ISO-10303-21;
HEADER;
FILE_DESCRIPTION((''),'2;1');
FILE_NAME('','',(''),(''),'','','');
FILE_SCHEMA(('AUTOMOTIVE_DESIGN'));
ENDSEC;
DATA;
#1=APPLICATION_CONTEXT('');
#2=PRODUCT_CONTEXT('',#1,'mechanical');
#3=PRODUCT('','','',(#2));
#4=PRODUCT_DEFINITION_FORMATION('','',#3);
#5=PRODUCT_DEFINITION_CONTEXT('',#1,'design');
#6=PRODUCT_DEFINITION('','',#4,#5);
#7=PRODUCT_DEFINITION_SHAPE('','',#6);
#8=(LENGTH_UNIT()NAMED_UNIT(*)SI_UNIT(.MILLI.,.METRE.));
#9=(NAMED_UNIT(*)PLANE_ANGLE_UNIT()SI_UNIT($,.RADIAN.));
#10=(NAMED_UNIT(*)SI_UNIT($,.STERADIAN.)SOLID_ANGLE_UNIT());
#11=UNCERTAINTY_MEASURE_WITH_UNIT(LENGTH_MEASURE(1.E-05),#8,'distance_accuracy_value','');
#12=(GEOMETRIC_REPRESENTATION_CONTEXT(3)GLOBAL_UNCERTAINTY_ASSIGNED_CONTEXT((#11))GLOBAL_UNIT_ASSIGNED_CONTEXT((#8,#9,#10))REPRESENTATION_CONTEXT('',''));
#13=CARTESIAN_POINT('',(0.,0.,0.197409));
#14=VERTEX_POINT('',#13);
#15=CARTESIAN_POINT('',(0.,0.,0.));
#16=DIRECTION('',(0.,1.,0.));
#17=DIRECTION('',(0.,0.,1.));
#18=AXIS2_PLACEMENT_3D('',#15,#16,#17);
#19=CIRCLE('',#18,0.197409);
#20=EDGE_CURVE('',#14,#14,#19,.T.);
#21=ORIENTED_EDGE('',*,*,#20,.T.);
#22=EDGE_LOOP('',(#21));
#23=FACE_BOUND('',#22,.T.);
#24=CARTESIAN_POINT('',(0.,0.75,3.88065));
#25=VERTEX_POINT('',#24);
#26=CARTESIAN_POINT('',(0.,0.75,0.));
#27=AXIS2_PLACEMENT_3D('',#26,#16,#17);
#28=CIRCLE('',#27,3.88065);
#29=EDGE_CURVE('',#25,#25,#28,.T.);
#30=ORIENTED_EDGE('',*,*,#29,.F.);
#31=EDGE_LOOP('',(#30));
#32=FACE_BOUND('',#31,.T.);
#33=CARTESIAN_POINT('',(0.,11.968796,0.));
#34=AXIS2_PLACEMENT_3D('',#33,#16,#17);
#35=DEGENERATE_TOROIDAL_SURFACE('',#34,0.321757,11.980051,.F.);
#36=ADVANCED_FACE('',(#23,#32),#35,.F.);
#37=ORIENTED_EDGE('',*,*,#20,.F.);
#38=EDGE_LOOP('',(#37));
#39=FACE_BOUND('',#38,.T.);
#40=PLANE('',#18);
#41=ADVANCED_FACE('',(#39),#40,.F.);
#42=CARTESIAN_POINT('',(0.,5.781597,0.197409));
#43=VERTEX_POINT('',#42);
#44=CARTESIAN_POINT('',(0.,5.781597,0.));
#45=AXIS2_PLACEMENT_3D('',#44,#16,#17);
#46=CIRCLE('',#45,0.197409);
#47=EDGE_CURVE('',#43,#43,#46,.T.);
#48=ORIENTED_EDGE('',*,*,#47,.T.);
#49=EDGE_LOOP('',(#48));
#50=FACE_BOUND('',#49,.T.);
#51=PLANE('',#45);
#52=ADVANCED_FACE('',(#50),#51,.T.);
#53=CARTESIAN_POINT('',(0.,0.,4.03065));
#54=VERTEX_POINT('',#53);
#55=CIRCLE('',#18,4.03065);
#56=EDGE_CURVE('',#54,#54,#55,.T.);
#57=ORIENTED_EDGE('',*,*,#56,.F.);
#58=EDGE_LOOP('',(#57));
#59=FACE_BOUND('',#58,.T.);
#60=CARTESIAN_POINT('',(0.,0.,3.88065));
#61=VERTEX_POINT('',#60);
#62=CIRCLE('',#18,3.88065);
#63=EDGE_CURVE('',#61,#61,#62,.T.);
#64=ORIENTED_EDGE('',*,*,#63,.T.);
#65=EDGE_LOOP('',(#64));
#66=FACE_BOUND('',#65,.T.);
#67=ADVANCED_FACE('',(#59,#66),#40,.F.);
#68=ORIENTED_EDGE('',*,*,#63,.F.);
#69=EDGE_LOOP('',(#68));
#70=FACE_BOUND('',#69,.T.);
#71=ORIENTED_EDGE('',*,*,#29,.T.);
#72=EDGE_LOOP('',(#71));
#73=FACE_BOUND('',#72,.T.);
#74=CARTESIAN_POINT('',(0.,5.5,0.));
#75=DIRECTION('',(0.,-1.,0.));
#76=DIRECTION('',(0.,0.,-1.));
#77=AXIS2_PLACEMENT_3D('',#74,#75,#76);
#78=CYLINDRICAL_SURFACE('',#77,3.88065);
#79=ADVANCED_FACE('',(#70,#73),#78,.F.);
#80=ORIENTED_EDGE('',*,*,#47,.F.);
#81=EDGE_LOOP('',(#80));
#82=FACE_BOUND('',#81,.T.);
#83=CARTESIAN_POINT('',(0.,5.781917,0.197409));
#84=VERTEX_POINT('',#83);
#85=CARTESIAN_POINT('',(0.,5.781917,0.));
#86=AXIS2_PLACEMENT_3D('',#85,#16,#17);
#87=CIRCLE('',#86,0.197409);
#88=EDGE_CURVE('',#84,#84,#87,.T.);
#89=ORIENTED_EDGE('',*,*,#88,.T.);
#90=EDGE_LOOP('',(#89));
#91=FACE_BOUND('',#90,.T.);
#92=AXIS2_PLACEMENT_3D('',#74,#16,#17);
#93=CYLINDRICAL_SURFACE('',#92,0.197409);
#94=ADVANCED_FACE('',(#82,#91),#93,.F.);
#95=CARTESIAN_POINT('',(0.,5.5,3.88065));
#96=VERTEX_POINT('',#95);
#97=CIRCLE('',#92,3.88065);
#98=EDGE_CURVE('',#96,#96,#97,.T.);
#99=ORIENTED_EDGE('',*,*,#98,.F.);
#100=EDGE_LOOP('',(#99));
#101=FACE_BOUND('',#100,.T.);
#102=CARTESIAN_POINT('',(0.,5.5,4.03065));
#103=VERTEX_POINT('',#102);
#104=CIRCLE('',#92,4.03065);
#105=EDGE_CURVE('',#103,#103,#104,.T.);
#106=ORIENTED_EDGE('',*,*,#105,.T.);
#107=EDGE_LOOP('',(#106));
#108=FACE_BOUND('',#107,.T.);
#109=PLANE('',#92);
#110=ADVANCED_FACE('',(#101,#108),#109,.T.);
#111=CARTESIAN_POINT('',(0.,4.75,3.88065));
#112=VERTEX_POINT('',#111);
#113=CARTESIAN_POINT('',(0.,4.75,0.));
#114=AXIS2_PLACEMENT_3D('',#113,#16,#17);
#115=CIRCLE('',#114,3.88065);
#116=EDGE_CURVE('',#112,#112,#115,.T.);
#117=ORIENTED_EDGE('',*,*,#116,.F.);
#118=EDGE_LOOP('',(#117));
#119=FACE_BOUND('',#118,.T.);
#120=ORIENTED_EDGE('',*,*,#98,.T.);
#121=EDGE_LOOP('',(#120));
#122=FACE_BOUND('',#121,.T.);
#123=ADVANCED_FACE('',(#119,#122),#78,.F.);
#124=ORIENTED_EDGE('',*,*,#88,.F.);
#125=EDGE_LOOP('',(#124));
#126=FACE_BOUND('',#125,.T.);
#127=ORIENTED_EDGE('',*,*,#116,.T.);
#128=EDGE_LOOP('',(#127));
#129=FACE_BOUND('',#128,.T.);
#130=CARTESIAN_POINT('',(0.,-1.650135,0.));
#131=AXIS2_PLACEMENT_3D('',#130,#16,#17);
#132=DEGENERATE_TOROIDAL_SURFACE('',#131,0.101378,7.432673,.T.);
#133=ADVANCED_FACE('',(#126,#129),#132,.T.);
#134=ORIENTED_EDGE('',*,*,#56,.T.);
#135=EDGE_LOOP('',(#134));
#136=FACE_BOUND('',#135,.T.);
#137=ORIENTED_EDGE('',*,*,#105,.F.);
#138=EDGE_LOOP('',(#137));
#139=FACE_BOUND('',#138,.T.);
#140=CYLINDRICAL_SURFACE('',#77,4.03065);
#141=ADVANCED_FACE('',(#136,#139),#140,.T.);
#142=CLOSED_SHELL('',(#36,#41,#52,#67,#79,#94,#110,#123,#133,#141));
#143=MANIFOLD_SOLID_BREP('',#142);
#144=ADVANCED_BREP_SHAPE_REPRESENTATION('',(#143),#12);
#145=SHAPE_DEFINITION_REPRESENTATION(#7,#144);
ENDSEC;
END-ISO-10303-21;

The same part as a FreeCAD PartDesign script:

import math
import FreeCAD as App
import Part
import Sketcher

doc = App.newDocument("Part")
params = doc.addObject("Spreadsheet::Sheet", "Params")
for row, (alias, value) in enumerate([
    ("pad1_length", "5.5 mm"),
    ("sketch2_height", "4 mm"),
    ("revolution_angle", "360 deg"),
    ("pad2_length", "0.281597 mm"),
    ("pad2_length2", "5.5 mm"),
], start=1):
    params.set(f"A{row}", alias)
    params.set(f"B{row}", "=" + value)
    params.setAlias(f"B{row}", alias)

body = doc.addObject("PartDesign::Body", "Body")

sketch1 = body.newObject("Sketcher::SketchObject", "Sketch")
sketch1.AttachmentSupport = (doc.getObject("XZ_Plane"), [""])
sketch1.MapMode = "FlatFace"
sketch1.addGeometry([
    Part.Circle(App.Vector(0, 0, 0), App.Vector(0, 0, 1), 4.03065),
    Part.Circle(App.Vector(0, 0, 0), App.Vector(0, 0, 1), 3.88065),
], False)
sketch1.addConstraint([
    Sketcher.Constraint("Coincident", 0, 3, -1, 1),
    Sketcher.Constraint("Coincident", 1, 3, -1, 1),
    Sketcher.Constraint("Diameter", 0, 8.0613),
    Sketcher.Constraint("Diameter", 1, 7.7613),
])
pad1 = body.newObject("PartDesign::Pad", "Pad")
pad1.Profile = sketch1
pad1.setExpression("Length", "Params.pad1_length")
pad1.Reversed = True

sketch2 = body.newObject("Sketcher::SketchObject", "Sketch001")
sketch2.AttachmentSupport = (doc.getObject("XY_Plane"), [""])
sketch2.MapMode = "FlatFace"
sketch2.addGeometry([
    Part.LineSegment(App.Vector(0.197409, 5.781917, 0), App.Vector(0.197409, 0, 0)),
    Part.ArcOfCircle(Part.Circle(App.Vector(-0.321757, 11.968796, 0), App.Vector(0, 0, 1), 11.980051), math.radians(-87.51626), math.radians(-69.464738)),
    Part.LineSegment(App.Vector(3.88065, 0.75, 0), App.Vector(3.88065, 4.75, 0)),
    Part.ArcOfCircle(Part.Circle(App.Vector(0.101378, -1.650135, 0), App.Vector(0, 0, 1), 7.432673), math.radians(59.4382), math.radians(89.259713)),
], False)
sketch2.addConstraint([
    Sketcher.Constraint("Coincident", 0, 2, 1, 1),
    Sketcher.Constraint("Coincident", 1, 2, 2, 1),
    Sketcher.Constraint("Coincident", 2, 2, 3, 1),
    Sketcher.Constraint("Coincident", 3, 2, 0, 1),
    Sketcher.Constraint("Vertical", 0),
    Sketcher.Constraint("Vertical", 2),
    Sketcher.Constraint("PointOnObject", 0, 2, -1),
    Sketcher.Constraint("DistanceY", 2, 1, 2, 2, 4.0),
    Sketcher.Constraint("DistanceY", -1, 1, 1, 2, 0.75),
    Sketcher.Constraint("Radius", 1, 11.980051),
    Sketcher.Constraint("Radius", 3, 7.432673),
    Sketcher.Constraint("DistanceY", 0, 2, 0, 1, 5.781917),
    Sketcher.Constraint("DistanceX", -1, 1, 0, 2, 0.197409),
    Sketcher.Constraint("DistanceX", -1, 1, 1, 2, 3.88065),
])
sketch2.setExpression("Constraints[7]", "Params.sketch2_height")
revolution = body.newObject("PartDesign::Revolution", "Revolution")
revolution.Profile = sketch2
revolution.ReferenceAxis = (sketch2, ["V_Axis"])
revolution.setExpression("Angle", "Params.revolution_angle")

sketch3 = body.newObject("Sketcher::SketchObject", "Sketch002")
sketch3.AttachmentSupport = (doc.getObject("XZ_Plane"), [""])
sketch3.MapMode = "FlatFace"
sketch3.AttachmentOffset = App.Placement(App.Vector(0, 0, -5.5), App.Rotation())
sketch3.addGeometry(Part.Circle(App.Vector(0, 0, 0), App.Vector(0, 0, 1), 0.197409), False)
sketch3.addConstraint([
    Sketcher.Constraint("Coincident", 0, 3, -1, 1),
    Sketcher.Constraint("Diameter", 0, 0.394817),
])
pad2 = body.newObject("PartDesign::Pad", "Pad001")
pad2.Profile = sketch3
pad2.Type = "TwoLengths"
pad2.setExpression("Length", "Params.pad2_length")
pad2.setExpression("Length2", "Params.pad2_length2")
pad2.Reversed = True

doc.recompute()
